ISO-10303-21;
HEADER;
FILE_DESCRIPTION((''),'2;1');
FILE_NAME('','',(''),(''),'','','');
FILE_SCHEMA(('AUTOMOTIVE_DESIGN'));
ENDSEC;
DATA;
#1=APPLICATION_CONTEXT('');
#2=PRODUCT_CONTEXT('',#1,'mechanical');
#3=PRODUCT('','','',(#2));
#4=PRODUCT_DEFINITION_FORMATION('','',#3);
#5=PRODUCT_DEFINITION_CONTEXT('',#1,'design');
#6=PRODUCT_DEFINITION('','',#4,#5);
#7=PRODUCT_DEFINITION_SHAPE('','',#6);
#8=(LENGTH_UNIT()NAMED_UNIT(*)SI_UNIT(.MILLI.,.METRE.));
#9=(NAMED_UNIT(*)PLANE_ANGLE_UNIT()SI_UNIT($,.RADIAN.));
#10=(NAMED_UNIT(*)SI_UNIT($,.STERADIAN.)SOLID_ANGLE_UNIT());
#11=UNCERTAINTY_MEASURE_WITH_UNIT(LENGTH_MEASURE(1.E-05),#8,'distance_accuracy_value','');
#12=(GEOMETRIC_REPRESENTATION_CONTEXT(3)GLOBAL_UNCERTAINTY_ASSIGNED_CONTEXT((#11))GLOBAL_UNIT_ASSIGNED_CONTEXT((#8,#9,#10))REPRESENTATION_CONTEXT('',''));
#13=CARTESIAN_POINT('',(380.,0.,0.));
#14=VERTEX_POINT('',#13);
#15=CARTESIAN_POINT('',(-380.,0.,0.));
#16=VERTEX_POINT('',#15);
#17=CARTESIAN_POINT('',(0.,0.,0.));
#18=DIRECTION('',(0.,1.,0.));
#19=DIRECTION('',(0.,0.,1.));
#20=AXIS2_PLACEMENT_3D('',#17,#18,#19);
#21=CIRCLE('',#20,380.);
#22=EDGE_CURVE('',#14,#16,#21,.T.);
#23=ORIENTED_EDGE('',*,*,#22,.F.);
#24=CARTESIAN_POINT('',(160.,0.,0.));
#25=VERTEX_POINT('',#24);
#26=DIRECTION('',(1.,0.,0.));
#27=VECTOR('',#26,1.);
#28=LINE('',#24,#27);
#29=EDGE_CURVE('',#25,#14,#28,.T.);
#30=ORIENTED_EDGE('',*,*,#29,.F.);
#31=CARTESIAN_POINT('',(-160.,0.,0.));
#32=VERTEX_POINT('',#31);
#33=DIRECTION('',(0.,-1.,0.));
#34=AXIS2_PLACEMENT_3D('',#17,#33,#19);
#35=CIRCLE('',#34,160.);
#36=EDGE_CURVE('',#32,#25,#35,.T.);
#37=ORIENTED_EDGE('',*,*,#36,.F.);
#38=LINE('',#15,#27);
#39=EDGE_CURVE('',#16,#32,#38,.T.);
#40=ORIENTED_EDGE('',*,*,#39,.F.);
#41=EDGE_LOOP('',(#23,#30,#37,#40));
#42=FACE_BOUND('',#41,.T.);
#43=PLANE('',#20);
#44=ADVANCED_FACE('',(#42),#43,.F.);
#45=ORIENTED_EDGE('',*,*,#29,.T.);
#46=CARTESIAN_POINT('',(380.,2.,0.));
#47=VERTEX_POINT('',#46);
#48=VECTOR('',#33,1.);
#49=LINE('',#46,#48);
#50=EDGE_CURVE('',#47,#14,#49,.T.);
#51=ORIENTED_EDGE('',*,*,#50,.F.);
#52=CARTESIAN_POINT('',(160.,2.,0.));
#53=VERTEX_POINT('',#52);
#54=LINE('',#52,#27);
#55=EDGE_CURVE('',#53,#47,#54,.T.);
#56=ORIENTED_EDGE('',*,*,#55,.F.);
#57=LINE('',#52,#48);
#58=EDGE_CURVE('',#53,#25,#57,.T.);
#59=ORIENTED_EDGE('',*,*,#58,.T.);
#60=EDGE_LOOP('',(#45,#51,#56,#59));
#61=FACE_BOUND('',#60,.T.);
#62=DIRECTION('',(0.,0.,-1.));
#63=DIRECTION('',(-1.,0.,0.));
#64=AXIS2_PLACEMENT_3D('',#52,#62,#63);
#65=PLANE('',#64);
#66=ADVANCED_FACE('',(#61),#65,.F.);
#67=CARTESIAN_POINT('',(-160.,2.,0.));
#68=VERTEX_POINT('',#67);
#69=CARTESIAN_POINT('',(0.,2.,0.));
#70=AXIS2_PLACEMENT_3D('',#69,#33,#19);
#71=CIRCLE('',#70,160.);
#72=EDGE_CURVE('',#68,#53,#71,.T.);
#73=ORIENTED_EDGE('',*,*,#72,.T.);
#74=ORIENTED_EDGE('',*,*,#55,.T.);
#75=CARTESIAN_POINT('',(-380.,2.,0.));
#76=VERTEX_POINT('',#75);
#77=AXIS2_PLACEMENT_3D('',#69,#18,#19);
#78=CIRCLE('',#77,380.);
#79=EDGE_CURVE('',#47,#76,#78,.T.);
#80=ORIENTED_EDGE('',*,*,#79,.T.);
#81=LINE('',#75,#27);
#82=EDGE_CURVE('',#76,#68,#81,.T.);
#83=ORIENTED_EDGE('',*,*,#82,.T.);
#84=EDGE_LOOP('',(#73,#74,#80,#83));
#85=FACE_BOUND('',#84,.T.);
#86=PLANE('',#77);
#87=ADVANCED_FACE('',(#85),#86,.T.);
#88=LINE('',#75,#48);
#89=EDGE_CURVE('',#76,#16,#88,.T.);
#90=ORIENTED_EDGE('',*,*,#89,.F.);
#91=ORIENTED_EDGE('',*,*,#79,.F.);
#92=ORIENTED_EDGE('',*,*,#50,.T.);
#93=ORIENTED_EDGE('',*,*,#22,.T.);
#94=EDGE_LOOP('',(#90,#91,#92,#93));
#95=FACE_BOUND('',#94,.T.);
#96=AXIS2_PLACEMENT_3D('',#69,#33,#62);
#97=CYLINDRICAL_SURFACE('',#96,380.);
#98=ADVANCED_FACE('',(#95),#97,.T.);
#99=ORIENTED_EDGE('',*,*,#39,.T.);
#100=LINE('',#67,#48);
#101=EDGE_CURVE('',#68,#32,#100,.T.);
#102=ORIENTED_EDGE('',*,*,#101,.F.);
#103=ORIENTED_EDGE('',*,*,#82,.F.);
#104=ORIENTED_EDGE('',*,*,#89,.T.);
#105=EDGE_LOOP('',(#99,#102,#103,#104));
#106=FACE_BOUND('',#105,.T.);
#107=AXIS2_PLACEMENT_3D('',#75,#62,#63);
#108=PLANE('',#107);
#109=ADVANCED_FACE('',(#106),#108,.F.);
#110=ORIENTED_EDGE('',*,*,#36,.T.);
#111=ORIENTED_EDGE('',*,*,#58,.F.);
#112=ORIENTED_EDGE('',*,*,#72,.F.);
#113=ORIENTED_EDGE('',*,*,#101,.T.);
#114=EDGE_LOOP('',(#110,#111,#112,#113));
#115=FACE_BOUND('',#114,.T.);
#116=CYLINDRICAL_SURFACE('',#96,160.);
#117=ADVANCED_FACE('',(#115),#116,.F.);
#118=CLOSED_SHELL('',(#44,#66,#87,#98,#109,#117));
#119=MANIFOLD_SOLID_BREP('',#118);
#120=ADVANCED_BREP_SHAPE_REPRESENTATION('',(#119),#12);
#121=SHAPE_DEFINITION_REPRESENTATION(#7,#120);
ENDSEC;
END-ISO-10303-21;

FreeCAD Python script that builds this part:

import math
import FreeCAD as App
import Part
import Sketcher

V = App.Vector

doc = App.newDocument("Part")
body = doc.addObject("PartDesign::Body", "Body")

# Sketch on XZ plane
sketch1 = body.newObject("Sketcher::SketchObject", "Sketch")
sketch1.AttachmentSupport = (doc.getObject("XZ_Plane"), [""])
sketch1.MapMode = "FlatFace"
sketch1.addGeometry([
    Part.LineSegment(V(-380, 0, 0), V(-160, 0, 0)),
    Part.ArcOfCircle(Part.Circle(V(0, 0, 0), V(0, 0, 1), 160), math.radians(180), math.radians(360)),
    Part.LineSegment(V(160, 0, 0), V(380, 0, 0)),
    Part.ArcOfCircle(Part.Circle(V(0, 0, 0), V(0, 0, 1), 380), math.radians(180), math.radians(360)),
], False)
sketch1.addConstraint([
    Sketcher.Constraint("Coincident", 0, 2, 1, 1),
    Sketcher.Constraint("Coincident", 1, 2, 2, 1),
    Sketcher.Constraint("Coincident", 2, 2, 3, 2),
    Sketcher.Constraint("Coincident", 3, 1, 0, 1),
    Sketcher.Constraint("Horizontal", 0),
    Sketcher.Constraint("Horizontal", 2),
    Sketcher.Constraint("Coincident", 1, 3, -1, 1),
    Sketcher.Constraint("Coincident", 3, 3, -1, 1),
    Sketcher.Constraint("PointOnObject", 0, 2, -1),
    Sketcher.Constraint("PointOnObject", 1, 2, -1),
    Sketcher.Constraint("Radius", 1, 160.0),
    Sketcher.Constraint("Radius", 3, 380.0),
])
pad1 = body.newObject("PartDesign::Pad", "Pad")
pad1.Profile = sketch1
pad1.Length = 2
pad1.Reversed = True

doc.recompute()
